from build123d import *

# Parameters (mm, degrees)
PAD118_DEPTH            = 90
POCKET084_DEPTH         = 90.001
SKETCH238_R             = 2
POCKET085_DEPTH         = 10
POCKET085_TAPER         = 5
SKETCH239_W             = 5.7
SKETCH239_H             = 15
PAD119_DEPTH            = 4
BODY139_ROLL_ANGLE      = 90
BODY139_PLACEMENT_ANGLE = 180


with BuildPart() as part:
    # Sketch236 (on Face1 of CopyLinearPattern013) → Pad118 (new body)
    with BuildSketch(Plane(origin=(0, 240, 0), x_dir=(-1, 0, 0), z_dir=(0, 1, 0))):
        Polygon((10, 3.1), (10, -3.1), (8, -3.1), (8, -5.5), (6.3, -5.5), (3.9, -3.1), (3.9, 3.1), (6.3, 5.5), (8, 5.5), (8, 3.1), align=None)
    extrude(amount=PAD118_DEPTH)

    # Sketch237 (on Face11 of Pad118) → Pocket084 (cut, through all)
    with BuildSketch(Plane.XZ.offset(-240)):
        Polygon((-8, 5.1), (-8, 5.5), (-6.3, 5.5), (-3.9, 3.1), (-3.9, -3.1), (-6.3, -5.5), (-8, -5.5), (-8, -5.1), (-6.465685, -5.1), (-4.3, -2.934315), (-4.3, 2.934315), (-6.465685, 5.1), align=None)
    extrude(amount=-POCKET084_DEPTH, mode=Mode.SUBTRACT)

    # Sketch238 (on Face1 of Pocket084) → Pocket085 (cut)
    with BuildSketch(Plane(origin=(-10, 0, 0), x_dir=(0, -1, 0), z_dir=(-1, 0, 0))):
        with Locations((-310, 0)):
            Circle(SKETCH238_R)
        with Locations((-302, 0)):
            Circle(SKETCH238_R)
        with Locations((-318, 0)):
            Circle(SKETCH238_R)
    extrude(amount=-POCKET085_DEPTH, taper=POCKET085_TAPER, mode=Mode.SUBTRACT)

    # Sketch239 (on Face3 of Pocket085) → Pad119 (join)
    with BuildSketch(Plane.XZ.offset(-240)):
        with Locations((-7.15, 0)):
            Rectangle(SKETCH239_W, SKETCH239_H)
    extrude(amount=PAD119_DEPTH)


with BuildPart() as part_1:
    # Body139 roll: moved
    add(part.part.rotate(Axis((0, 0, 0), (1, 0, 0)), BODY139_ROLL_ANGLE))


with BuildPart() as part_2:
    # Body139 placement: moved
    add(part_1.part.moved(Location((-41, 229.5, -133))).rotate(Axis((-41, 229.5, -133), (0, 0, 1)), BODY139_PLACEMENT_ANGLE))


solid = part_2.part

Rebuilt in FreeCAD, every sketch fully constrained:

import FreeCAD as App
import Part
import Sketcher

V = App.Vector
Q = App.Units.Quantity


def add_polygon(sketch, points):
    """Adds a closed chain of lines whose ends are joined by coincident constraints."""
    first, n = sketch.GeometryCount, len(points)
    for a, b in zip(points, points[1:] + points[:1]):
        sketch.addGeometry(Part.LineSegment(App.Vector(*a, 0), App.Vector(*b, 0)), False)
    for i in range(n):
        sketch.addConstraint(Sketcher.Constraint("Coincident", first + i, 2, first + (i + 1) % n, 1))

doc = App.newDocument("Part")
params = doc.addObject("Spreadsheet::Sheet", "Params")
for row, (alias, value) in enumerate([
    ("sketch1_width", "2 mm"),
    ("sketch1_width2", "1.7 mm"),
    ("sketch1_height", "6.2 mm"),
    ("sketch1_height2", "2.4 mm"),
    ("pad1_length", "90 mm"),
    ("sketch2_width", "1.7 mm"),
    ("sketch2_height", "0.4 mm"),
    ("sketch2_height2", "6.2 mm"),
    ("sketch3_diameter", "4 mm"),
    ("pocket2_length", "10 mm"),
    ("pocket2_taper", "-5 deg"),
    ("sketch4_height", "15 mm"),
    ("sketch4_width", "5.7 mm"),
    ("pad2_length", "4 mm"),
], start=1):
    params.set(f"A{row}", alias)
    params.set(f"B{row}", "=" + value)
    params.setAlias(f"B{row}", alias)

body = doc.addObject("PartDesign::Body", "Body")

# Sketch on XZ plane
sketch1 = body.newObject("Sketcher::SketchObject", "Sketch")
sketch1.AttachmentSupport = (doc.getObject("XZ_Plane"), [""])
sketch1.MapMode = "FlatFace"
sketch1.AttachmentOffset = App.Placement(V(0, 0, -240), App.Rotation())
add_polygon(sketch1, [(-10, -3.1), (-10, 3.1), (-8, 3.1), (-8, 5.5), (-6.3, 5.5), (-3.9, 3.1), (-3.9, -3.1), (-6.3, -5.5), (-8, -5.5), (-8, -3.1)])  # lines 0-9
sketch1.addConstraint(Sketcher.Constraint("Vertical", 0))
sketch1.addConstraint(Sketcher.Constraint("Horizontal", 1))
sketch1.addConstraint(Sketcher.Constraint("Vertical", 2))
sketch1.addConstraint(Sketcher.Constraint("Horizontal", 3))
sketch1.addConstraint(Sketcher.Constraint("Vertical", 5))
sketch1.addConstraint(Sketcher.Constraint("Horizontal", 7))
sketch1.addConstraint(Sketcher.Constraint("Vertical", 8))
sketch1.addConstraint(Sketcher.Constraint("Horizontal", 9))
sketch1.addConstraint(Sketcher.Constraint("Symmetric", 3, 2, 6, 2, -1))
sketch1.addConstraint(Sketcher.Constraint("Symmetric", 1, 2, 8, 2, -1))
sketch1.addConstraint(Sketcher.Constraint("Perpendicular", 4, 6))
sketch1.addConstraint(Sketcher.Constraint("Horizontal", 1, 2, 4, 2))
sketch1.addConstraint(Sketcher.Constraint("Horizontal", 5, 2, 8, 2))
sketch1.addConstraint(Sketcher.Constraint("DistanceX", 1, 1, 1, 2, Q("2 mm")))
sketch1.addConstraint(Sketcher.Constraint("DistanceX", 3, 1, 3, 2, Q("1.7 mm")))
sketch1.addConstraint(Sketcher.Constraint("DistanceY", 0, 1, 0, 2, Q("6.2 mm")))
sketch1.addConstraint(Sketcher.Constraint("DistanceY", 2, 1, 2, 2, Q("2.4 mm")))
sketch1.addConstraint(Sketcher.Constraint("DistanceX", 0, 2, -1, 1, Q("10 mm")))
sketch1.setExpression("Constraints[23]", "Params.sketch1_width")
sketch1.setExpression("Constraints[24]", "Params.sketch1_width2")
sketch1.setExpression("Constraints[25]", "Params.sketch1_height")
sketch1.setExpression("Constraints[26]", "Params.sketch1_height2")
pad1 = body.newObject("PartDesign::Pad", "Pad")
pad1.Profile = sketch1
pad1.setExpression("Length", "Params.pad1_length")
pad1.Reversed = True

# Sketch on XZ plane
sketch2 = body.newObject("Sketcher::SketchObject", "Sketch001")
sketch2.AttachmentSupport = (doc.getObject("XZ_Plane"), [""])
sketch2.MapMode = "FlatFace"
sketch2.AttachmentOffset = App.Placement(V(0, 0, -240), App.Rotation())
add_polygon(sketch2, [(-8, 5.5), (-8, 5.1), (-6.47, 5.1), (-4.3, 2.93), (-4.3, -2.93), (-6.47, -5.1), (-8, -5.1), (-8, -5.5), (-6.3, -5.5), (-3.9, -3.1), (-3.9, 3.1), (-6.3, 5.5)])  # lines 0-11
sketch2.addConstraint(Sketcher.Constraint("Vertical", 0))
sketch2.addConstraint(Sketcher.Constraint("Horizontal", 1))
sketch2.addConstraint(Sketcher.Constraint("Vertical", 3))
sketch2.addConstraint(Sketcher.Constraint("Horizontal", 5))
sketch2.addConstraint(Sketcher.Constraint("Vertical", 6))
sketch2.addConstraint(Sketcher.Constraint("Horizontal", 7))
sketch2.addConstraint(Sketcher.Constraint("Vertical", 9))
sketch2.addConstraint(Sketcher.Constraint("Horizontal", 11))
sketch2.addConstraint(Sketcher.Constraint("Symmetric", 1, 2, 4, 2, -1))
sketch2.addConstraint(Sketcher.Constraint("Symmetric", 7, 2, 10, 2, -1))
sketch2.addConstraint(Sketcher.Constraint("Perpendicular", 2, 4))
sketch2.addConstraint(Sketcher.Constraint("Parallel", 4, 8))
sketch2.addConstraint(Sketcher.Constraint("Perpendicular", 8, 10))
sketch2.addConstraint(Sketcher.Constraint("Vertical", 0, 2, 5, 2))
sketch2.addConstraint(Sketcher.Constraint("Equal", 2, 4))
sketch2.addConstraint(Sketcher.Constraint("DistanceX", 7, 1, 7, 2, Q("1.7 mm")))
sketch2.addConstraint(Sketcher.Constraint("DistanceY", 0, 2, 0, 1, Q("0.4 mm")))
sketch2.addConstraint(Sketcher.Constraint("DistanceY", 9, 1, 9, 2, Q("6.2 mm")))
sketch2.addConstraint(Sketcher.Constraint("DistanceX", 0, 2, -1, 1, Q("8 mm")))
sketch2.addConstraint(Sketcher.Constraint("DistanceX", 7, 2, 3, 2, Q("2 mm")))
sketch2.addConstraint(Sketcher.Constraint("DistanceY", 4, 2, 8, 2, Q("2 mm")))
sketch2.addConstraint(Sketcher.Constraint("DistanceY", 3, 2, 3, 1, Q("5.86863 mm")))
sketch2.setExpression("Constraints[27]", "Params.sketch2_width")
sketch2.setExpression("Constraints[28]", "Params.sketch2_height")
sketch2.setExpression("Constraints[29]", "Params.sketch2_height2")
pocket1 = body.newObject("PartDesign::Pocket", "Pocket")
pocket1.Profile = sketch2
pocket1.Type = "ThroughAll"

# Sketch on YZ plane
sketch3 = body.newObject("Sketcher::SketchObject", "Sketch002")
sketch3.AttachmentSupport = (doc.getObject("YZ_Plane"), [""])
sketch3.MapMode = "FlatFace"
sketch3.AttachmentOffset = App.Placement(V(0, 0, -10), App.Rotation())
sketch3.addGeometry(Part.Circle(V(310, 0, 0), V(0, 0, 1), 2), False)
sketch3.addGeometry(Part.Circle(V(302, 0, 0), V(0, 0, 1), 2), False)
sketch3.addGeometry(Part.Circle(V(318, 0, 0), V(0, 0, 1), 2), False)
sketch3.addConstraint(Sketcher.Constraint("Equal", 0, 1))
sketch3.addConstraint(Sketcher.Constraint("Equal", 1, 2))
sketch3.addConstraint(Sketcher.Constraint("PointOnObject", 0, 3, -1))
sketch3.addConstraint(Sketcher.Constraint("PointOnObject", 1, 3, -1))
sketch3.addConstraint(Sketcher.Constraint("PointOnObject", 2, 3, -1))
sketch3.addConstraint(Sketcher.Constraint("Diameter", 0, Q("4 mm")))
sketch3.addConstraint(Sketcher.Constraint("DistanceX", -1, 1, 0, 3, Q("310 mm")))
sketch3.addConstraint(Sketcher.Constraint("DistanceX", -1, 1, 1, 3, Q("302 mm")))
sketch3.addConstraint(Sketcher.Constraint("DistanceX", -1, 1, 2, 3, Q("318 mm")))
sketch3.setExpression("Constraints[5]", "Params.sketch3_diameter")
pocket2 = body.newObject("PartDesign::Pocket", "Pocket001")
pocket2.Profile = sketch3
pocket2.setExpression("Length", "Params.pocket2_length")
pocket2.Reversed = True
pocket2.setExpression("TaperAngle", "Params.pocket2_taper")

# Sketch on XZ plane
sketch4 = body.newObject("Sketcher::SketchObject", "Sketch003")
sketch4.AttachmentSupport = (doc.getObject("XZ_Plane"), [""])
sketch4.MapMode = "FlatFace"
sketch4.AttachmentOffset = App.Placement(V(0, 0, -240), App.Rotation())
add_polygon(sketch4, [(-10, 8), (-10, -8), (-4, -8), (-4, 8)])  # lines 0-3
sketch4.addConstraint(Sketcher.Constraint("Vertical", 0))
sketch4.addConstraint(Sketcher.Constraint("Horizontal", 1))
sketch4.addConstraint(Sketcher.Constraint("Vertical", 2))
sketch4.addConstraint(Sketcher.Constraint("Horizontal", 3))
sketch4.addConstraint(Sketcher.Constraint("DistanceY", 0, 2, 0, 1, Q("15 mm")))
sketch4.addConstraint(Sketcher.Constraint("DistanceX", 1, 1, 1, 2, Q("5.7 mm")))
sketch4.addConstraint(Sketcher.Constraint("DistanceX", 0, 2, -1, 1, Q("10 mm")))
sketch4.addConstraint(Sketcher.Constraint("DistanceY", 0, 2, -1, 1, Q("7.5 mm")))
sketch4.setExpression("Constraints[8]", "Params.sketch4_height")
sketch4.setExpression("Constraints[9]", "Params.sketch4_width")
pad2 = body.newObject("PartDesign::Pad", "Pad001")
pad2.Profile = sketch4
pad2.setExpression("Length", "Params.pad2_length")
body2 = doc.addObject("PartDesign::Body", "Body001")
doc.recompute()

body.Placement = App.Placement(V(0, 0, 0), App.Rotation(V(1, 0, 0), 90))
boolean = body2.newObject("PartDesign::Boolean", "Boolean")
boolean.Type = "Fuse"
boolean.addObjects([body])
body3 = doc.addObject("PartDesign::Body", "Body002")
doc.recompute()

body2.Placement = App.Placement(V(-41, 229.5, -133), App.Rotation(V(0, 0, 1), 180))
boolean2 = body3.newObject("PartDesign::Boolean", "Boolean001")
boolean2.Type = "Fuse"
boolean2.addObjects([body2])

doc.recompute()
